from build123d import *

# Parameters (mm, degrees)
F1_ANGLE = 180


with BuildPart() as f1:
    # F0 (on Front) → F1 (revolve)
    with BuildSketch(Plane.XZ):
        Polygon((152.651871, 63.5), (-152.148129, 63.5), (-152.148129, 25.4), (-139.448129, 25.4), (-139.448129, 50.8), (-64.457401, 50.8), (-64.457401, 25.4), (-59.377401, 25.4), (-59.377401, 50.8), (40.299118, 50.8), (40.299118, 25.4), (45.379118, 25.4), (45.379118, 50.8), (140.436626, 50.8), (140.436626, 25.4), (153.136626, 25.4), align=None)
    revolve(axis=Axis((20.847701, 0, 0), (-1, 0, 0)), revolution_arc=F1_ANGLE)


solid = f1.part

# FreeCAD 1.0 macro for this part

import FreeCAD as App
import Part
import Sketcher
Q = App.Units.Quantity


def add_polygon(sketch, points):
    """Adds a closed chain of lines whose ends are joined by coincident constraints."""
    first, n = sketch.GeometryCount, len(points)
    for a, b in zip(points, points[1:] + points[:1]):
        sketch.addGeometry(Part.LineSegment(App.Vector(*a, 0), App.Vector(*b, 0)), False)
    for i in range(n):
        sketch.addConstraint(Sketcher.Constraint("Coincident", first + i, 2, first + (i + 1) % n, 1))

doc = App.newDocument("Part")
body = doc.addObject("PartDesign::Body", "Body")

# Sketch on XZ plane
sketch1 = body.newObject("Sketcher::SketchObject", "Sketch")
sketch1.AttachmentSupport = (doc.getObject("XZ_Plane"), [""])
sketch1.MapMode = "FlatFace"
add_polygon(sketch1, [(152.651871, 63.5), (-152.148129, 63.5), (-152.148129, 25.4), (-139.448129, 25.4), (-139.448129, 50.8), (-64.457401, 50.8), (-64.457401, 25.4), (-59.377401, 25.4), (-59.377401, 50.8), (40.299118, 50.8), (40.299118, 25.4), (45.379118, 25.4), (45.379118, 50.8), (140.436626, 50.8), (140.436626, 25.4), (153.136626, 25.4)])  # lines 0-15
sketch1.addConstraint([
    Sketcher.Constraint("Horizontal", 0),
    Sketcher.Constraint("Vertical", 1),
    Sketcher.Constraint("Horizontal", 2),
    Sketcher.Constraint("Vertical", 3),
    Sketcher.Constraint("Horizontal", 4),
    Sketcher.Constraint("Vertical", 5),
    Sketcher.Constraint("Horizontal", 6),
    Sketcher.Constraint("Vertical", 7),
    Sketcher.Constraint("Horizontal", 8),
    Sketcher.Constraint("Vertical", 9),
    Sketcher.Constraint("Horizontal", 10),
    Sketcher.Constraint("Vertical", 11),
    Sketcher.Constraint("Horizontal", 12),
    Sketcher.Constraint("Vertical", 13),
    Sketcher.Constraint("Horizontal", 14),
    Sketcher.Constraint("Horizontal", 2, 2, 5, 2),
    Sketcher.Constraint("Horizontal", 4, 2, 7, 2),
    Sketcher.Constraint("Horizontal", 6, 2, 9, 2),
    Sketcher.Constraint("Horizontal", 8, 2, 11, 2),
    Sketcher.Constraint("Horizontal", 10, 2, 13, 2),
    Sketcher.Constraint("Equal", 6, 10),
    Sketcher.Constraint("Equal", 2, 14),
    Sketcher.Constraint("DistanceX", 0, 2, 0, 1, Q("12 in")),
    Sketcher.Constraint("DistanceY", 3, 1, 3, 2, Q("1 in")),
    Sketcher.Constraint("DistanceX", 2, 1, 2, 2, Q("0.5 in")),
    Sketcher.Constraint("DistanceX", 6, 1, 6, 2, Q("0.2 in")),
    Sketcher.Constraint("DistanceY", 1, 2, 1, 1, Q("1.5 in")),
    Sketcher.Constraint("DistanceY", -1, 1, 1, 2, Q("1 in")),
    Sketcher.Constraint("DistanceX", 8, 1, 8, 2, 99.676519),
    Sketcher.Constraint("DistanceX", 4, 2, -1, 1, 64.457401),
    Sketcher.Constraint("DistanceX", 4, 1, 4, 2, 74.990728),
    Sketcher.Constraint("DistanceX", 12, 1, 12, 2, 95.057508),
])
revolution = body.newObject("PartDesign::Revolution", "Revolution")
revolution.Profile = sketch1
revolution.ReferenceAxis = (sketch1, ["H_Axis"])
revolution.Angle = 180
revolution.Reversed = True

doc.recompute()
